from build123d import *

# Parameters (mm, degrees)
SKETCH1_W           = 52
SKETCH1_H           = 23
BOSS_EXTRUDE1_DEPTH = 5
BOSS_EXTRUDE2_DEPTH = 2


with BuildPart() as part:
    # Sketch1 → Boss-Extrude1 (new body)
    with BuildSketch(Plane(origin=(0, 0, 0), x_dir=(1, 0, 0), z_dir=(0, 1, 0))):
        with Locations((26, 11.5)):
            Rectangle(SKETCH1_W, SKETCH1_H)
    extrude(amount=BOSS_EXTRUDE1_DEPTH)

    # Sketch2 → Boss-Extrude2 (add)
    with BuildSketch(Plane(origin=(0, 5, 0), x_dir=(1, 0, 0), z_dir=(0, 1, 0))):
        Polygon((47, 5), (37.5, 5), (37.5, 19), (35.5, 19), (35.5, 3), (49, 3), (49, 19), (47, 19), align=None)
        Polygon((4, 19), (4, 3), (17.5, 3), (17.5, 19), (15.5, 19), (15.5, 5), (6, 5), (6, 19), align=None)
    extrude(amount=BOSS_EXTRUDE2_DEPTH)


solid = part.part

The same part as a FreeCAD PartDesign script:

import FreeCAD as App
import Part
import Sketcher

V = App.Vector
Q = App.Units.Quantity


def add_polygon(sketch, points):
    """Adds a closed chain of lines whose ends are joined by coincident constraints."""
    first, n = sketch.GeometryCount, len(points)
    for a, b in zip(points, points[1:] + points[:1]):
        sketch.addGeometry(Part.LineSegment(App.Vector(*a, 0), App.Vector(*b, 0)), False)
    for i in range(n):
        sketch.addConstraint(Sketcher.Constraint("Coincident", first + i, 2, first + (i + 1) % n, 1))

doc = App.newDocument("Part")
params = doc.addObject("Spreadsheet::Sheet", "Params")
for row, (alias, value) in enumerate([
    ("sketch1_width", "52 mm"),
    ("sketch1_height", "23 mm"),
    ("pad1_length", "5 mm"),
    ("sketch2_width", "2 mm"),
    ("sketch2_height", "14 mm"),
    ("sketch2_height2", "16 mm"),
    ("sketch2_width2", "9.5 mm"),
    ("pad2_length", "2 mm"),
], start=1):
    params.set(f"A{row}", alias)
    params.set(f"B{row}", "=" + value)
    params.setAlias(f"B{row}", alias)

body = doc.addObject("PartDesign::Body", "Body")

sketch1 = doc.addObject("Sketcher::SketchObject", "Sketch")
body.addObject(sketch1)
sketch1.AttachmentSupport = (doc.XZ_Plane, [""])
sketch1.MapMode = "FlatFace"
add_polygon(sketch1, [(0, -23), (0, 0), (52, 0), (52, -23)])
sketch1.addConstraint(Sketcher.Constraint("Vertical", 0))
sketch1.addConstraint(Sketcher.Constraint("Horizontal", 1))
sketch1.addConstraint(Sketcher.Constraint("Vertical", 2))
sketch1.addConstraint(Sketcher.Constraint("Horizontal", 3))
sketch1.addConstraint(Sketcher.Constraint("Coincident", 0, 2, -1, 1))
sketch1.addConstraint(Sketcher.Constraint("DistanceX", 1, 1, 1, 2, Q("52 mm")))
sketch1.addConstraint(Sketcher.Constraint("DistanceY", 0, 1, 0, 2, Q("23 mm")))
sketch1.setExpression("Constraints[9]", "Params.sketch1_width")
sketch1.setExpression("Constraints[10]", "Params.sketch1_height")
pad1 = doc.addObject("PartDesign::Pad", "Pad")
body.addObject(pad1)
pad1.Profile = sketch1
pad1.setExpression("Length", "Params.pad1_length")
pad1.Reversed = True

sketch2 = doc.addObject("Sketcher::SketchObject", "Sketch001")
body.addObject(sketch2)
sketch2.AttachmentSupport = (doc.XZ_Plane, [""])
sketch2.MapMode = "FlatFace"
sketch2.AttachmentOffset = App.Placement(V(0, 0, -5), App.Rotation())
add_polygon(sketch2, [(47, -5), (37.5, -5), (37.5, -19), (35.5, -19), (35.5, -3), (49, -3), (49, -19), (47, -19)])
add_polygon(sketch2, [(4, -19), (4, -3), (17.5, -3), (17.5, -19), (15.5, -19), (15.5, -5), (6, -5), (6, -19)])
sketch2.addConstraint(Sketcher.Constraint("Horizontal", 0))
sketch2.addConstraint(Sketcher.Constraint("Vertical", 1))
sketch2.addConstraint(Sketcher.Constraint("Horizontal", 2))
sketch2.addConstraint(Sketcher.Constraint("Vertical", 3))
sketch2.addConstraint(Sketcher.Constraint("Horizontal", 4))
sketch2.addConstraint(Sketcher.Constraint("Vertical", 5))
sketch2.addConstraint(Sketcher.Constraint("Horizontal", 6))
sketch2.addConstraint(Sketcher.Constraint("Vertical", 7))
sketch2.addConstraint(Sketcher.Constraint("Vertical", 8))
sketch2.addConstraint(Sketcher.Constraint("Horizontal", 9))
sketch2.addConstraint(Sketcher.Constraint("Vertical", 10))
sketch2.addConstraint(Sketcher.Constraint("Horizontal", 11))
sketch2.addConstraint(Sketcher.Constraint("Vertical", 12))
sketch2.addConstraint(Sketcher.Constraint("Horizontal", 13))
sketch2.addConstraint(Sketcher.Constraint("Vertical", 14))
sketch2.addConstraint(Sketcher.Constraint("Horizontal", 15))
sketch2.addConstraint(Sketcher.Constraint("Horizontal", 2, 2, 5, 2))
sketch2.addConstraint(Sketcher.Constraint("Horizontal", 4, 2, 8, 2))
sketch2.addConstraint(Sketcher.Constraint("Horizontal", 6, 2, 10, 2))
sketch2.addConstraint(Sketcher.Constraint("Horizontal", 7, 2, 12, 2))
sketch2.addConstraint(Sketcher.Constraint("Horizontal", 11, 2, 14, 2))
sketch2.addConstraint(Sketcher.Constraint("Equal", 2, 6))
sketch2.addConstraint(Sketcher.Constraint("Equal", 4, 9))
sketch2.addConstraint(Sketcher.Constraint("Equal", 6, 11))
sketch2.addConstraint(Sketcher.Constraint("Equal", 0, 13))
sketch2.addConstraint(Sketcher.Constraint("DistanceX", 2, 2, 2, 1, Q("2 mm")))
sketch2.addConstraint(Sketcher.Constraint("DistanceY", 1, 2, 1, 1, Q("14 mm")))
sketch2.addConstraint(Sketcher.Constraint("DistanceY", 3, 1, 3, 2, Q("16 mm")))
sketch2.addConstraint(Sketcher.Constraint("DistanceX", 0, 2, 0, 1, Q("9.5 mm")))
sketch2.addConstraint(Sketcher.Constraint("DistanceY", 0, 2, -1, 1, Q("5 mm")))
sketch2.addConstraint(Sketcher.Constraint("DistanceX", -1, 1, 4, 2, Q("49 mm")))
sketch2.addConstraint(Sketcher.Constraint("DistanceX", -1, 1, 8, 2, Q("4 mm")))
sketch2.setExpression("Constraints[41]", "Params.sketch2_width")
sketch2.setExpression("Constraints[42]", "Params.sketch2_height")
sketch2.setExpression("Constraints[43]", "Params.sketch2_height2")
sketch2.setExpression("Constraints[44]", "Params.sketch2_width2")
pad2 = doc.addObject("PartDesign::Pad", "Pad001")
body.addObject(pad2)
pad2.Profile = sketch2
pad2.setExpression("Length", "Params.pad2_length")
pad2.Reversed = True

doc.recompute()
